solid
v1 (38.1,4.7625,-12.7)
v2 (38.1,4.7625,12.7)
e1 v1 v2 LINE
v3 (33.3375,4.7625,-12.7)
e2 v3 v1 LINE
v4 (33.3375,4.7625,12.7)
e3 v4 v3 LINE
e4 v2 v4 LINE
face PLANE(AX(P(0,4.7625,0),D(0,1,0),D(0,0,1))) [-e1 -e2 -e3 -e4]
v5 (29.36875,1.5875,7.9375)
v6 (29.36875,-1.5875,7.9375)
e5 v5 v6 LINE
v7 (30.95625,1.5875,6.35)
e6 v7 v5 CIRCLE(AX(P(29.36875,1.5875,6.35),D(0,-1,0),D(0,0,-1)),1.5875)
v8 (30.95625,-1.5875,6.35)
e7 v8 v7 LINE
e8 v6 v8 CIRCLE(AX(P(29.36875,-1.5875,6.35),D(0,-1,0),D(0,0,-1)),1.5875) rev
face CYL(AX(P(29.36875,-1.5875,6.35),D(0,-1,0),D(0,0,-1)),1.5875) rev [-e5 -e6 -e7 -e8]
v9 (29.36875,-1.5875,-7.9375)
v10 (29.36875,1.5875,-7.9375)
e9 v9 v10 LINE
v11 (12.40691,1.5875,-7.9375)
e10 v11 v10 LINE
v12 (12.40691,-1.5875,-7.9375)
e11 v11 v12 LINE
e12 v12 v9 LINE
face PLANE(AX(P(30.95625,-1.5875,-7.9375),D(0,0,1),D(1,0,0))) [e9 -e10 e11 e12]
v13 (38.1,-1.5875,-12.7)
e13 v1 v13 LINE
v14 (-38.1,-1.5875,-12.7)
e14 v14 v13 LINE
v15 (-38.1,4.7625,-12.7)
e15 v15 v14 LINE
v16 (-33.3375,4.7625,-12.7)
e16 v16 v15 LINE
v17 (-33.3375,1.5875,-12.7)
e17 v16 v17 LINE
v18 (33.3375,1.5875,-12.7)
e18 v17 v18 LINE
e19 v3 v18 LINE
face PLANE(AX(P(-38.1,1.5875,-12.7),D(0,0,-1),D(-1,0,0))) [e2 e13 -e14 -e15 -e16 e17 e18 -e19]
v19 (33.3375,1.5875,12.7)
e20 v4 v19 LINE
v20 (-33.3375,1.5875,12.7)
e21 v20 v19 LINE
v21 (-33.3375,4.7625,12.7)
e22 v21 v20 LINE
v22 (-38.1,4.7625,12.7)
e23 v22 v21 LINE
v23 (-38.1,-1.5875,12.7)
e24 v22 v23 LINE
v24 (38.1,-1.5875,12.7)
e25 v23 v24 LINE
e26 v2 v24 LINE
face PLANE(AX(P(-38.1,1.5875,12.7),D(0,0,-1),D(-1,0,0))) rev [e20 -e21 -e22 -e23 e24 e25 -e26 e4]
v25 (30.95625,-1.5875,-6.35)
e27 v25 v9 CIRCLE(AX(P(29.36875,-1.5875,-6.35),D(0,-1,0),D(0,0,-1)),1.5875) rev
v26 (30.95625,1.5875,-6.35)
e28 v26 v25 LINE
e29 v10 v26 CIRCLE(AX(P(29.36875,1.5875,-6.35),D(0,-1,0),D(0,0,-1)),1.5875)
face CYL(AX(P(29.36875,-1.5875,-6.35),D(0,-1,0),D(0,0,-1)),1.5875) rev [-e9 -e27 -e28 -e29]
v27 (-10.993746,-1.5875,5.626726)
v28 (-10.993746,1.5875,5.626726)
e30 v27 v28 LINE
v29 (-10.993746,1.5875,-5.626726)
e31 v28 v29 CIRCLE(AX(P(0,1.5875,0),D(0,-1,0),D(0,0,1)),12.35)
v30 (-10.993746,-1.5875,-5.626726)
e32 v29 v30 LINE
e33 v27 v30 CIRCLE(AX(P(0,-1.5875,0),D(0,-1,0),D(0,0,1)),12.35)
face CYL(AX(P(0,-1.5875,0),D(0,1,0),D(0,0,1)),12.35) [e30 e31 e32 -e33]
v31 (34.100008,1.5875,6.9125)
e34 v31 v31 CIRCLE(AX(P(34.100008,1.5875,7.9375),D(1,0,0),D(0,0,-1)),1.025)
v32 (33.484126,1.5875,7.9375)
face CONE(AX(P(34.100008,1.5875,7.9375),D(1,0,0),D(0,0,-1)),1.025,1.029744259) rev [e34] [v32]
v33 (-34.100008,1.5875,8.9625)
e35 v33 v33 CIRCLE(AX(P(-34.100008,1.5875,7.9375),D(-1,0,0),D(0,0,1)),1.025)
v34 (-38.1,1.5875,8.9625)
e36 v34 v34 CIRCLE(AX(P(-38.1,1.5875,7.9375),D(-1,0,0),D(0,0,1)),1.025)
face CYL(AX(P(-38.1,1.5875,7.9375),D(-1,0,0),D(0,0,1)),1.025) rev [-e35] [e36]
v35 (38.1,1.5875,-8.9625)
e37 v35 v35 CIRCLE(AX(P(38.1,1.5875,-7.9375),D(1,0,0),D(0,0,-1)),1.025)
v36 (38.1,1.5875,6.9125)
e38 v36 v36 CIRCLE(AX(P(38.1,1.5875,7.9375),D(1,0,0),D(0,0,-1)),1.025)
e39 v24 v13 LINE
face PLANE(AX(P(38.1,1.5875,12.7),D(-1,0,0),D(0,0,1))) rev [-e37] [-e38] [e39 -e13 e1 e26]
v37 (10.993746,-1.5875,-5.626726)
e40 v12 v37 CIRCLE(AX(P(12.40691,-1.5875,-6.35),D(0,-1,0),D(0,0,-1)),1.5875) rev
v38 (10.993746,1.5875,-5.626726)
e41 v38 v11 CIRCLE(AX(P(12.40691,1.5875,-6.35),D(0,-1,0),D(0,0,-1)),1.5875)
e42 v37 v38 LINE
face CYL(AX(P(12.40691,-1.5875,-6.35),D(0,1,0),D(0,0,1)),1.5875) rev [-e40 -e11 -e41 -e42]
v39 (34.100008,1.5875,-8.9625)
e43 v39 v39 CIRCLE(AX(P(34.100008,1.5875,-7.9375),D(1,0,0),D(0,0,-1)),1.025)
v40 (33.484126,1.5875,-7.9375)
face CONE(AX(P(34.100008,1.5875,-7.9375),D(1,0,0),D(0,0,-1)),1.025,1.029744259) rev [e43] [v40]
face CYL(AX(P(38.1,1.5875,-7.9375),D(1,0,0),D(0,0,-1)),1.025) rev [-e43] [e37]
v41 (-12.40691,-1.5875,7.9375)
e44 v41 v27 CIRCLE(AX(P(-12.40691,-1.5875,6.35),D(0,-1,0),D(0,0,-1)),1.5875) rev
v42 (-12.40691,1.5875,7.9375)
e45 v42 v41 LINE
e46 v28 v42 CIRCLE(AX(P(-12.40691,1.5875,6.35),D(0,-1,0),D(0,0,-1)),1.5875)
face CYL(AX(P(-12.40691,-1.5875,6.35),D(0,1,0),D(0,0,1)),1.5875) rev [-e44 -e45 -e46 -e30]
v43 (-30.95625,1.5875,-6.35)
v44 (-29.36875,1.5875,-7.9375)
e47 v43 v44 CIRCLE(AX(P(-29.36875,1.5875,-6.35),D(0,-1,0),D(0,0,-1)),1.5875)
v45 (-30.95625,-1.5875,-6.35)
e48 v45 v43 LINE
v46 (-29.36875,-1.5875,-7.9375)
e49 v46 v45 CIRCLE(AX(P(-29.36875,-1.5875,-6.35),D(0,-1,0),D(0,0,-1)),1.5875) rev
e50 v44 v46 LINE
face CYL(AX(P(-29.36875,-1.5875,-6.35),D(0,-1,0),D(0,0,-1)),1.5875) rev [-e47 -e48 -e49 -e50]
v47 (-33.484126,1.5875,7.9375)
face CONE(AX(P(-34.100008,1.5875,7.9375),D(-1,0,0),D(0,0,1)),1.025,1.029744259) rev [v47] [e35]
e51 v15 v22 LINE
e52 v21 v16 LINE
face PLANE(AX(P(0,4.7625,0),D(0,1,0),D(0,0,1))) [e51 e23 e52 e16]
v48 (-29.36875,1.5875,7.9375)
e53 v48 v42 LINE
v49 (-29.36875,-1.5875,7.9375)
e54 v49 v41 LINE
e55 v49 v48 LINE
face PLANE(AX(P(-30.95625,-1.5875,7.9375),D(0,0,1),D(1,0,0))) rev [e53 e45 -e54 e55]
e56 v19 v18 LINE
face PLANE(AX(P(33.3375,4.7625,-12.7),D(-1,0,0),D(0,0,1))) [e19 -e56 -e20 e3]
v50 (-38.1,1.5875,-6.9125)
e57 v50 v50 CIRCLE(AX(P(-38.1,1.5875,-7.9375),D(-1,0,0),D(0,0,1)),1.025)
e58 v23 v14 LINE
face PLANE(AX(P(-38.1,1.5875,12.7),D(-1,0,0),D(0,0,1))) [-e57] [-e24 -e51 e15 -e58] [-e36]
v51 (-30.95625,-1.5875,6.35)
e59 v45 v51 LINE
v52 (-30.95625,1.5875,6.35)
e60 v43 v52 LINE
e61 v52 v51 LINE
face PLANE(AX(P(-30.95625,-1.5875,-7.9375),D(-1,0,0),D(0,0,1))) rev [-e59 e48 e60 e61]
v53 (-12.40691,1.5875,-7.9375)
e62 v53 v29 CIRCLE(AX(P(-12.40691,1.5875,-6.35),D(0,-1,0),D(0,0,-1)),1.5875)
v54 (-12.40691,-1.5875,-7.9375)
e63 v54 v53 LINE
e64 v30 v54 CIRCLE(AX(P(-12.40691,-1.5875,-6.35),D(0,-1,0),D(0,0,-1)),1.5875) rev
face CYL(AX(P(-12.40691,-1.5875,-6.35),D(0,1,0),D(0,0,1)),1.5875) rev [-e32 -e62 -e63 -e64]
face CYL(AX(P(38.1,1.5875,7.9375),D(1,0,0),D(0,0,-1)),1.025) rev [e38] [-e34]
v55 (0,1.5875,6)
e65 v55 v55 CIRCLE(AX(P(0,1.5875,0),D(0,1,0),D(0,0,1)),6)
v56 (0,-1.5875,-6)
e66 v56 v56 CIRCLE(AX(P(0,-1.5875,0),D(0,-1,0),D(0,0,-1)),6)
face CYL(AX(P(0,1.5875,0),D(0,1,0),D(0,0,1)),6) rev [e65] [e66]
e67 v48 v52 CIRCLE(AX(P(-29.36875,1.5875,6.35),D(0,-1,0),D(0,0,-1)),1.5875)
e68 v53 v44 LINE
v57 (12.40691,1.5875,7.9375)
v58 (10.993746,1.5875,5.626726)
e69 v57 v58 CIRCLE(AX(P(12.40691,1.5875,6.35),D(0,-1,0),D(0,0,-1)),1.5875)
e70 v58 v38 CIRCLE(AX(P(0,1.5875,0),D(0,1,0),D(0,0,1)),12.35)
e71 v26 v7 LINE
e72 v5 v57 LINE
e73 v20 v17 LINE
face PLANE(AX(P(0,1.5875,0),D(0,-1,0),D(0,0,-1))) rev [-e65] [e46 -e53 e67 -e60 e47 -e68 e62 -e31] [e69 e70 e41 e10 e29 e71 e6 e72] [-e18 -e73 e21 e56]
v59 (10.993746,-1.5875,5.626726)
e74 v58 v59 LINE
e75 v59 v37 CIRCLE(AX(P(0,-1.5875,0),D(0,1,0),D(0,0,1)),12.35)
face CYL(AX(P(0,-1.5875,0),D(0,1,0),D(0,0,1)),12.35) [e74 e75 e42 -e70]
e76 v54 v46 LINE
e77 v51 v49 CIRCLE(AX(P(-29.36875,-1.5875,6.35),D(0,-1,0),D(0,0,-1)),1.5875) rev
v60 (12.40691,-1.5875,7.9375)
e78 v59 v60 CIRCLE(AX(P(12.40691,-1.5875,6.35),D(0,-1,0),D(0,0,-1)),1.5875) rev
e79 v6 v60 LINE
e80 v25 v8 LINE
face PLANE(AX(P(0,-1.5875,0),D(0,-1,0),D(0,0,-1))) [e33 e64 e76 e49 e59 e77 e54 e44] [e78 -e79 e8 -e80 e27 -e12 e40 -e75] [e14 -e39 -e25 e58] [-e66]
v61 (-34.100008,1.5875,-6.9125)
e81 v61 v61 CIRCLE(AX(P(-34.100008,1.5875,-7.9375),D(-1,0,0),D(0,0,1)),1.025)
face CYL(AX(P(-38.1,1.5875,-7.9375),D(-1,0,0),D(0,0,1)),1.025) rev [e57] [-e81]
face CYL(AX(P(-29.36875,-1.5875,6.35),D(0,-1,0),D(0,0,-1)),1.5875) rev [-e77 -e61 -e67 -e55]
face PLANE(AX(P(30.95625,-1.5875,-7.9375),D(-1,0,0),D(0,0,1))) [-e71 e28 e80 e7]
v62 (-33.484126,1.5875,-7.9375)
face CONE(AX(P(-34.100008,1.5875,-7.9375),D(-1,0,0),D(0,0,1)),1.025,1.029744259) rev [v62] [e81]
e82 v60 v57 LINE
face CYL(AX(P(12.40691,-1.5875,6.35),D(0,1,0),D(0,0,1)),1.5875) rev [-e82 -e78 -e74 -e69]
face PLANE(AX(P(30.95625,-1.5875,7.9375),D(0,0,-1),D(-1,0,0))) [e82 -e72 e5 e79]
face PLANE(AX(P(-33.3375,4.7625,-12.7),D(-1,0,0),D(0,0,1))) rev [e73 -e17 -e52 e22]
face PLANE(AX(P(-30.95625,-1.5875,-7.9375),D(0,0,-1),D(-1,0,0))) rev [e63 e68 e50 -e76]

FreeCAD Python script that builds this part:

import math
import FreeCAD as App
import Part
import Sketcher
Q = App.Units.Quantity


def edges_at(feature, points):
    """Names of the edges that pass closest to the given points."""
    edges = feature.Shape.Edges
    near = lambda p: min(range(len(edges)), key=lambda i: edges[i].distToShape(Part.Vertex(*p))[0])
    return sorted({f"Edge{near(p) + 1}" for p in points})


def add_polygon(sketch, points):
    """Adds a closed chain of lines whose ends are joined by coincident constraints."""
    first, n = sketch.GeometryCount, len(points)
    for a, b in zip(points, points[1:] + points[:1]):
        sketch.addGeometry(Part.LineSegment(App.Vector(*a, 0), App.Vector(*b, 0)), False)
    for i in range(n):
        sketch.addConstraint(Sketcher.Constraint("Coincident", first + i, 2, first + (i + 1) % n, 1))

doc = App.newDocument("Part")
body = doc.addObject("PartDesign::Body", "Body")

sketch1 = doc.addObject("Sketcher::SketchObject", "Sketch")
body.addObject(sketch1)
sketch1.AttachmentSupport = (doc.XZ_Plane, [""])
sketch1.MapMode = "FlatFace"
add_polygon(sketch1, [(-38.1, -12.7), (-38.1, 12.7), (38.1, 12.7), (38.1, -12.7)])
sketch1.addConstraint(Sketcher.Constraint("Vertical", 0))
sketch1.addConstraint(Sketcher.Constraint("Horizontal", 1))
sketch1.addConstraint(Sketcher.Constraint("Vertical", 2))
sketch1.addConstraint(Sketcher.Constraint("Horizontal", 3))
sketch1.addConstraint(Sketcher.Constraint("Symmetric", 0, 2, 2, 2, -1, 1))
sketch1.addConstraint(Sketcher.Constraint("DistanceX", 1, 1, 1, 2, Q("3 in")))
sketch1.addConstraint(Sketcher.Constraint("DistanceY", 0, 1, 0, 2, Q("1 in")))
pad1 = doc.addObject("PartDesign::Pad", "Pad")
body.addObject(pad1)
pad1.Profile = sketch1
pad1.Length = Q("0.125 in")
pad1.Midplane = True

sketch2 = doc.addObject("Sketcher::SketchObject", "Sketch001")
body.addObject(sketch2)
sketch2.AttachmentSupport = (doc.XZ_Plane, [""])
sketch2.MapMode = "FlatFace"
sketch2.AttachmentOffset = App.Placement(App.Vector(0, 0, -0.0625 * 25.4), App.Rotation())
sketch2.addGeometry(Part.Circle(App.Vector(0, 0, 0), App.Vector(0, 0, 1), 6), False)
sketch2.addConstraint(Sketcher.Constraint("Coincident", 0, 3, -1, 1))
sketch2.addConstraint(Sketcher.Constraint("Diameter", 0, Q("12 mm")))
doc.recompute()
hole = doc.addObject("PartDesign::Hole", "Hole")
body.addObject(hole)
hole.Profile = sketch2
hole.ThreadType = "None"
hole.Diameter = 12
hole.DepthType = "ThroughAll"
hole.Reversed = True

sketch3 = doc.addObject("Sketcher::SketchObject", "Sketch002")
body.addObject(sketch3)
sketch3.AttachmentSupport = (doc.XZ_Plane, [""])
sketch3.MapMode = "FlatFace"
sketch3.AttachmentOffset = App.Placement(App.Vector(0, 0, -0.0625 * 25.4), App.Rotation())
add_polygon(sketch3, [(-38.1, -12.7), (-38.1, 12.7), (-33.3375, 12.7), (-33.3375, -12.7)])
sketch3.addConstraint(Sketcher.Constraint("Vertical", 0))
sketch3.addConstraint(Sketcher.Constraint("Horizontal", 1))
sketch3.addConstraint(Sketcher.Constraint("Vertical", 2))
sketch3.addConstraint(Sketcher.Constraint("Horizontal", 3))
sketch3.addConstraint(Sketcher.Constraint("DistanceY", 0, 1, 0, 2, Q("1 in")))
sketch3.addConstraint(Sketcher.Constraint("DistanceX", 0, 2, -1, 1, Q("1.5 in")))
sketch3.addConstraint(Sketcher.Constraint("DistanceY", -1, 1, 0, 2, Q("0.5 in")))
sketch3.addConstraint(Sketcher.Constraint("DistanceX", 1, 1, 1, 2, Q("0.1875 in")))
pad2 = doc.addObject("PartDesign::Pad", "Pad001")
body.addObject(pad2)
pad2.Profile = sketch3
pad2.Length = Q("0.125 in")
pad2.Reversed = True
doc.recompute()

mirrored = doc.addObject("PartDesign::Mirrored", "Mirrored")
body.addObject(mirrored)
mirrored.Originals = [pad2]
mirrored.MirrorPlane = (doc.YZ_Plane, [""])
body.Tip = mirrored

sketch4 = doc.addObject("Sketcher::SketchObject", "Sketch003")
body.addObject(sketch4)
sketch4.AttachmentSupport = (doc.YZ_Plane, [""])
sketch4.MapMode = "FlatFace"
sketch4.AttachmentOffset = App.Placement(App.Vector(0, 0, -1.5 * 25.4), App.Rotation())
sketch4.addGeometry(Part.Circle(App.Vector(1.5875, 7.9375, 0), App.Vector(0, 0, 1), 1.025), False)
sketch4.addGeometry(Part.Circle(App.Vector(1.5875, -7.9375, 0), App.Vector(0, 0, 1), 1.025), False)
sketch4.addConstraint(Sketcher.Constraint("Equal", 0, 1))
sketch4.addConstraint(Sketcher.Constraint("Symmetric", 0, 3, 1, 3, -1))
sketch4.addConstraint(Sketcher.Constraint("Diameter", 0, Q("2.05 mm")))
sketch4.addConstraint(Sketcher.Constraint("DistanceX", -1, 1, 0, 3, Q("0.0625 in")))
sketch4.addConstraint(Sketcher.Constraint("DistanceY", -1, 1, 0, 3, Q("0.3125 in")))
doc.recompute()
hole2 = doc.addObject("PartDesign::Hole", "Hole001")
body.addObject(hole2)
hole2.Profile = sketch4
hole2.ThreadType = "None"
hole2.Diameter = 2.05
hole2.DepthType = "Dimension"
hole2.Depth = 3.999992
hole2.DrillPoint = "Angled"
hole2.DrillPointAngle = 118
hole2.Reversed = True

sketch5 = doc.addObject("Sketcher::SketchObject", "Sketch004")
body.addObject(sketch5)
sketch5.AttachmentSupport = (doc.YZ_Plane, [""])
sketch5.MapMode = "FlatFace"
sketch5.AttachmentOffset = App.Placement(App.Vector(0, 0, 1.5 * 25.4), App.Rotation())
sketch5.addGeometry(Part.Circle(App.Vector(1.5875, 7.9375, 0), App.Vector(0, 0, 1), 1.025), False)
sketch5.addGeometry(Part.Circle(App.Vector(1.5875, -7.9375, 0), App.Vector(0, 0, 1), 1.025), False)
sketch5.addConstraint(Sketcher.Constraint("Equal", 0, 1))
sketch5.addConstraint(Sketcher.Constraint("Symmetric", 0, 3, 1, 3, -1))
sketch5.addConstraint(Sketcher.Constraint("Diameter", 0, Q("2.05 mm")))
sketch5.addConstraint(Sketcher.Constraint("DistanceX", -1, 1, 0, 3, Q("0.0625 in")))
sketch5.addConstraint(Sketcher.Constraint("DistanceY", -1, 1, 0, 3, Q("0.3125 in")))
doc.recompute()
hole3 = doc.addObject("PartDesign::Hole", "Hole002")
body.addObject(hole3)
hole3.Profile = sketch5
hole3.ThreadType = "None"
hole3.Diameter = 2.05
hole3.DepthType = "Dimension"
hole3.Depth = 3.999992
hole3.DrillPoint = "Angled"
hole3.DrillPointAngle = 118

sketch6 = doc.addObject("Sketcher::SketchObject", "Sketch005")
body.addObject(sketch6)
sketch6.AttachmentSupport = (doc.XZ_Plane, [""])
sketch6.MapMode = "FlatFace"
sketch6.AttachmentOffset = App.Placement(App.Vector(0, 0, -0.0625 * 25.4), App.Rotation())
sketch6.addGeometry(Part.LineSegment(App.Vector(-30.95625, -7.9375, 0), App.Vector(-30.95625, 7.9375, 0)), False)
sketch6.addGeometry(Part.LineSegment(App.Vector(-30.95625, 7.9375, 0), App.Vector(-9.461427, 7.9375, 0)), False)
sketch6.addGeometry(Part.ArcOfCircle(Part.Circle(App.Vector(0, 0, 0), App.Vector(0, 0, 1), 12.35), math.radians(140.005614), math.radians(219.994386)), False)
sketch6.addGeometry(Part.LineSegment(App.Vector(-9.461427, -7.9375, 0), App.Vector(-30.95625, -7.9375, 0)), False)
sketch6.addConstraint(Sketcher.Constraint("Coincident", 0, 2, 1, 1))
sketch6.addConstraint(Sketcher.Constraint("Coincident", 1, 2, 2, 1))
sketch6.addConstraint(Sketcher.Constraint("Coincident", 2, 2, 3, 1))
sketch6.addConstraint(Sketcher.Constraint("Coincident", 3, 2, 0, 1))
sketch6.addConstraint(Sketcher.Constraint("Vertical", 0))
sketch6.addConstraint(Sketcher.Constraint("Horizontal", 1))
sketch6.addConstraint(Sketcher.Constraint("Horizontal", 3))
sketch6.addConstraint(Sketcher.Constraint("Coincident", 2, 3, -1, 1))
sketch6.addConstraint(Sketcher.Constraint("Vertical", 1, 2, 2, 2))
sketch6.addConstraint(Sketcher.Constraint("DistanceY", 0, 1, 0, 2, Q("0.625 in")))
sketch6.addConstraint(Sketcher.Constraint("Radius", 2, Q("12.35 mm")))
sketch6.addConstraint(Sketcher.Constraint("DistanceX", 0, 2, -1, 1, Q("1.21875 in")))
pocket1 = doc.addObject("PartDesign::Pocket", "Pocket")
body.addObject(pocket1)
pocket1.Profile = sketch6
pocket1.Type = "ThroughAll"
pocket1.Reversed = True
doc.recompute()

mirrored2 = doc.addObject("PartDesign::Mirrored", "Mirrored001")
body.addObject(mirrored2)
mirrored2.Originals = [pocket1]
mirrored2.MirrorPlane = (doc.YZ_Plane, [""])
body.Tip = mirrored2
doc.recompute()

fillet = doc.addObject("PartDesign::Fillet", "Fillet")
body.addObject(fillet)
fillet.Base = (mirrored2, edges_at(mirrored2, [
    (-30.956, 0, -7.938),
    (-9.461, 0, -7.938),
    (-9.461, 0, 7.938),
    (-30.956, 0, 7.938),
    (9.461, 0, -7.938),
    (30.956, 0, -7.938),
    (30.956, 0, 7.938),
    (9.461, 0, 7.938),
]))
fillet.Radius = Q("0.0625 in")

doc.recompute()
